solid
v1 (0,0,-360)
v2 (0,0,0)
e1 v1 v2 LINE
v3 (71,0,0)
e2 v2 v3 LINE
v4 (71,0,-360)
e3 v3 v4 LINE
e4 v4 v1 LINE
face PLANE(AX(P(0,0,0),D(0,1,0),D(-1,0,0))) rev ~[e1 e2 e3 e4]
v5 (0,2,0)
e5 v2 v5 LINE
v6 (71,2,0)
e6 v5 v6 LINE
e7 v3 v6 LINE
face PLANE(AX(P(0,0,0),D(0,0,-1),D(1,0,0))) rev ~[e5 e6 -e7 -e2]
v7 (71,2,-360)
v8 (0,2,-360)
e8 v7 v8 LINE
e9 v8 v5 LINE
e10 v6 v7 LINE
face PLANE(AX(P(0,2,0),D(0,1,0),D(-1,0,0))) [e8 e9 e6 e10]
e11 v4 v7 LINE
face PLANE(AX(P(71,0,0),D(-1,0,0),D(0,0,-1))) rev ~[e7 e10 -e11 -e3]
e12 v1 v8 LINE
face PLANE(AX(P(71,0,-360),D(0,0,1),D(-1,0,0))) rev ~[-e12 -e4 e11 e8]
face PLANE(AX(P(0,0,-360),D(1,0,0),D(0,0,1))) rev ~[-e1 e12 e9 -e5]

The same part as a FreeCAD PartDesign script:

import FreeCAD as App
import Part
import Sketcher
Q = App.Units.Quantity

doc = App.newDocument("Part")
body = doc.addObject("PartDesign::Body", "Body")

# Sketch on XZ plane
sketch1 = body.newObject("Sketcher::SketchObject", "Sketch")
sketch1.AttachmentSupport = (doc.getObject("XZ_Plane"), [""])
sketch1.MapMode = "FlatFace"
sketch1.addGeometry([
    Part.LineSegment(App.Vector(0, -360, 0), App.Vector(0, 0, 0)),
    Part.LineSegment(App.Vector(0, 0, 0), App.Vector(71, 0, 0)),
    Part.LineSegment(App.Vector(71, 0, 0), App.Vector(71, -360, 0)),
    Part.LineSegment(App.Vector(71, -360, 0), App.Vector(0, -360, 0)),
], False)
sketch1.addConstraint([
    Sketcher.Constraint("Coincident", 0, 2, 1, 1),
    Sketcher.Constraint("Coincident", 1, 2, 2, 1),
    Sketcher.Constraint("Coincident", 2, 2, 3, 1),
    Sketcher.Constraint("Coincident", 3, 2, 0, 1),
    Sketcher.Constraint("Vertical", 0),
    Sketcher.Constraint("Horizontal", 1),
    Sketcher.Constraint("Vertical", 2),
    Sketcher.Constraint("Horizontal", 3),
    Sketcher.Constraint("Coincident", 0, 2, -1, 1),
    Sketcher.Constraint("DistanceX", 1, 1, 1, 2, Q("71 mm")),
    Sketcher.Constraint("DistanceY", 0, 1, 0, 2, Q("360 mm")),
])
pad1 = body.newObject("PartDesign::Pad", "Pad")
pad1.Profile = sketch1
pad1.Length = 2
pad1.Reversed = True

doc.recompute()
